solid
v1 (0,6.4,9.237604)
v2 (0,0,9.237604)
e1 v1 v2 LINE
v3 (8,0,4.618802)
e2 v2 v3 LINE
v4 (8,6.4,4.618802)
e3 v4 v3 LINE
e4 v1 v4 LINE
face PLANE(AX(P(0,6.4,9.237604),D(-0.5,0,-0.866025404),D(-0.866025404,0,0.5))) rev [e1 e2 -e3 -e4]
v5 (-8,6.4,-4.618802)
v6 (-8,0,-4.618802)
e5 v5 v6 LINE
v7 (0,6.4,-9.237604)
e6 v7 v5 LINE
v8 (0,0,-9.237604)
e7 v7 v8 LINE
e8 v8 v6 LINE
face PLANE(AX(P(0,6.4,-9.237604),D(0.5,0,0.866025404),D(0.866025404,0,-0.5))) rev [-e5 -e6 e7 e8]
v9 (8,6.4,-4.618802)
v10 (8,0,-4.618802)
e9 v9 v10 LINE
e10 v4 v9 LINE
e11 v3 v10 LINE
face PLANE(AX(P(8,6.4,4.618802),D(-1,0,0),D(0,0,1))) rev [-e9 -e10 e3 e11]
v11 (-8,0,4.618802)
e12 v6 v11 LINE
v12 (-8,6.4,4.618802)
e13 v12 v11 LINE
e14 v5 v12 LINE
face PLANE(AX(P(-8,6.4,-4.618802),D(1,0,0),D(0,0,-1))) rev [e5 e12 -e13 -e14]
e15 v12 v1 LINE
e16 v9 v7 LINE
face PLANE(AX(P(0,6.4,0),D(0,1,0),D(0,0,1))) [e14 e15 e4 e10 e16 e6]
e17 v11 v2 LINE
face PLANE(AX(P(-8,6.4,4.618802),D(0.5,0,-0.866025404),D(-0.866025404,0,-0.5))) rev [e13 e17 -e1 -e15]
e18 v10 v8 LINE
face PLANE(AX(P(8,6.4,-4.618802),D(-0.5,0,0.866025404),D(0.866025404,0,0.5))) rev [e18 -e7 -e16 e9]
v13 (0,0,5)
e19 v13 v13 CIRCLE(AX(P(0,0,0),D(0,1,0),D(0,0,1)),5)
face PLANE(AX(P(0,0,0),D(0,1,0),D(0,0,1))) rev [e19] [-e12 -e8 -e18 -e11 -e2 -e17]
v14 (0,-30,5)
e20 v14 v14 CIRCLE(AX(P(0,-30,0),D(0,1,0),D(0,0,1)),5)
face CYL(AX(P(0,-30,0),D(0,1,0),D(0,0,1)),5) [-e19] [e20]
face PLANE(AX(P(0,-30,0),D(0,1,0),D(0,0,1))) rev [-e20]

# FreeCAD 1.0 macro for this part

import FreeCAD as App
import Part
import Sketcher

V = App.Vector
Q = App.Units.Quantity


def add_polygon(sketch, points):
    """Adds a closed chain of lines whose ends are joined by coincident constraints."""
    first, n = sketch.GeometryCount, len(points)
    for a, b in zip(points, points[1:] + points[:1]):
        sketch.addGeometry(Part.LineSegment(App.Vector(*a, 0), App.Vector(*b, 0)), False)
    for i in range(n):
        sketch.addConstraint(Sketcher.Constraint("Coincident", first + i, 2, first + (i + 1) % n, 1))

doc = App.newDocument("Part")
body = doc.addObject("PartDesign::Body", "Body")

# Sketch on XZ plane
sketch1 = body.newObject("Sketcher::SketchObject", "Sketch")
sketch1.AttachmentSupport = (doc.getObject("XZ_Plane"), [""])
sketch1.MapMode = "FlatFace"
add_polygon(sketch1, [(0, -9), (-8, -5), (-8, 5), (0, 9), (8, 5), (8, -5)])  # lines 0-5
sketch1.addConstraint(Sketcher.Constraint("Vertical", 1))
sketch1.addConstraint(Sketcher.Constraint("Vertical", 4))
sketch1.addConstraint(Sketcher.Constraint("Symmetric", 0, 2, 3, 2, -1, 1))
sketch1.addConstraint(Sketcher.Constraint("Symmetric", 2, 2, 5, 2, -1, 1))
sketch1.addConstraint(Sketcher.Constraint("PointOnObject", 2, 2, -2))
sketch1.addConstraint(Sketcher.Constraint("Parallel", 2, 5))
sketch1.addConstraint(Sketcher.Constraint("Horizontal", 1, 2, 3, 2))
sketch1.addConstraint(Sketcher.Constraint("Angle", 0, Q("150 deg")))
sketch1.addConstraint(Sketcher.Constraint("DistanceX", 0, 2, -1, 1, Q("8 mm")))
sketch1.addConstraint(Sketcher.Constraint("DistanceY", 1, 1, 1, 2, Q("9.237604 mm")))
pad1 = body.newObject("PartDesign::Pad", "Pad")
pad1.Profile = sketch1
pad1.Length = 6.4
pad1.Reversed = True

# Sketch on XZ plane
sketch2 = body.newObject("Sketcher::SketchObject", "Sketch001")
sketch2.AttachmentSupport = (doc.getObject("XZ_Plane"), [""])
sketch2.MapMode = "FlatFace"
sketch2.addGeometry(Part.Circle(V(0, 0, 0), V(0, 0, 1), 5), False)
sketch2.addConstraint(Sketcher.Constraint("Coincident", 0, 3, -1, 1))
sketch2.addConstraint(Sketcher.Constraint("Diameter", 0, Q("10 mm")))
pad2 = body.newObject("PartDesign::Pad", "Pad001")
pad2.Profile = sketch2
pad2.Length = 30

doc.recompute()
